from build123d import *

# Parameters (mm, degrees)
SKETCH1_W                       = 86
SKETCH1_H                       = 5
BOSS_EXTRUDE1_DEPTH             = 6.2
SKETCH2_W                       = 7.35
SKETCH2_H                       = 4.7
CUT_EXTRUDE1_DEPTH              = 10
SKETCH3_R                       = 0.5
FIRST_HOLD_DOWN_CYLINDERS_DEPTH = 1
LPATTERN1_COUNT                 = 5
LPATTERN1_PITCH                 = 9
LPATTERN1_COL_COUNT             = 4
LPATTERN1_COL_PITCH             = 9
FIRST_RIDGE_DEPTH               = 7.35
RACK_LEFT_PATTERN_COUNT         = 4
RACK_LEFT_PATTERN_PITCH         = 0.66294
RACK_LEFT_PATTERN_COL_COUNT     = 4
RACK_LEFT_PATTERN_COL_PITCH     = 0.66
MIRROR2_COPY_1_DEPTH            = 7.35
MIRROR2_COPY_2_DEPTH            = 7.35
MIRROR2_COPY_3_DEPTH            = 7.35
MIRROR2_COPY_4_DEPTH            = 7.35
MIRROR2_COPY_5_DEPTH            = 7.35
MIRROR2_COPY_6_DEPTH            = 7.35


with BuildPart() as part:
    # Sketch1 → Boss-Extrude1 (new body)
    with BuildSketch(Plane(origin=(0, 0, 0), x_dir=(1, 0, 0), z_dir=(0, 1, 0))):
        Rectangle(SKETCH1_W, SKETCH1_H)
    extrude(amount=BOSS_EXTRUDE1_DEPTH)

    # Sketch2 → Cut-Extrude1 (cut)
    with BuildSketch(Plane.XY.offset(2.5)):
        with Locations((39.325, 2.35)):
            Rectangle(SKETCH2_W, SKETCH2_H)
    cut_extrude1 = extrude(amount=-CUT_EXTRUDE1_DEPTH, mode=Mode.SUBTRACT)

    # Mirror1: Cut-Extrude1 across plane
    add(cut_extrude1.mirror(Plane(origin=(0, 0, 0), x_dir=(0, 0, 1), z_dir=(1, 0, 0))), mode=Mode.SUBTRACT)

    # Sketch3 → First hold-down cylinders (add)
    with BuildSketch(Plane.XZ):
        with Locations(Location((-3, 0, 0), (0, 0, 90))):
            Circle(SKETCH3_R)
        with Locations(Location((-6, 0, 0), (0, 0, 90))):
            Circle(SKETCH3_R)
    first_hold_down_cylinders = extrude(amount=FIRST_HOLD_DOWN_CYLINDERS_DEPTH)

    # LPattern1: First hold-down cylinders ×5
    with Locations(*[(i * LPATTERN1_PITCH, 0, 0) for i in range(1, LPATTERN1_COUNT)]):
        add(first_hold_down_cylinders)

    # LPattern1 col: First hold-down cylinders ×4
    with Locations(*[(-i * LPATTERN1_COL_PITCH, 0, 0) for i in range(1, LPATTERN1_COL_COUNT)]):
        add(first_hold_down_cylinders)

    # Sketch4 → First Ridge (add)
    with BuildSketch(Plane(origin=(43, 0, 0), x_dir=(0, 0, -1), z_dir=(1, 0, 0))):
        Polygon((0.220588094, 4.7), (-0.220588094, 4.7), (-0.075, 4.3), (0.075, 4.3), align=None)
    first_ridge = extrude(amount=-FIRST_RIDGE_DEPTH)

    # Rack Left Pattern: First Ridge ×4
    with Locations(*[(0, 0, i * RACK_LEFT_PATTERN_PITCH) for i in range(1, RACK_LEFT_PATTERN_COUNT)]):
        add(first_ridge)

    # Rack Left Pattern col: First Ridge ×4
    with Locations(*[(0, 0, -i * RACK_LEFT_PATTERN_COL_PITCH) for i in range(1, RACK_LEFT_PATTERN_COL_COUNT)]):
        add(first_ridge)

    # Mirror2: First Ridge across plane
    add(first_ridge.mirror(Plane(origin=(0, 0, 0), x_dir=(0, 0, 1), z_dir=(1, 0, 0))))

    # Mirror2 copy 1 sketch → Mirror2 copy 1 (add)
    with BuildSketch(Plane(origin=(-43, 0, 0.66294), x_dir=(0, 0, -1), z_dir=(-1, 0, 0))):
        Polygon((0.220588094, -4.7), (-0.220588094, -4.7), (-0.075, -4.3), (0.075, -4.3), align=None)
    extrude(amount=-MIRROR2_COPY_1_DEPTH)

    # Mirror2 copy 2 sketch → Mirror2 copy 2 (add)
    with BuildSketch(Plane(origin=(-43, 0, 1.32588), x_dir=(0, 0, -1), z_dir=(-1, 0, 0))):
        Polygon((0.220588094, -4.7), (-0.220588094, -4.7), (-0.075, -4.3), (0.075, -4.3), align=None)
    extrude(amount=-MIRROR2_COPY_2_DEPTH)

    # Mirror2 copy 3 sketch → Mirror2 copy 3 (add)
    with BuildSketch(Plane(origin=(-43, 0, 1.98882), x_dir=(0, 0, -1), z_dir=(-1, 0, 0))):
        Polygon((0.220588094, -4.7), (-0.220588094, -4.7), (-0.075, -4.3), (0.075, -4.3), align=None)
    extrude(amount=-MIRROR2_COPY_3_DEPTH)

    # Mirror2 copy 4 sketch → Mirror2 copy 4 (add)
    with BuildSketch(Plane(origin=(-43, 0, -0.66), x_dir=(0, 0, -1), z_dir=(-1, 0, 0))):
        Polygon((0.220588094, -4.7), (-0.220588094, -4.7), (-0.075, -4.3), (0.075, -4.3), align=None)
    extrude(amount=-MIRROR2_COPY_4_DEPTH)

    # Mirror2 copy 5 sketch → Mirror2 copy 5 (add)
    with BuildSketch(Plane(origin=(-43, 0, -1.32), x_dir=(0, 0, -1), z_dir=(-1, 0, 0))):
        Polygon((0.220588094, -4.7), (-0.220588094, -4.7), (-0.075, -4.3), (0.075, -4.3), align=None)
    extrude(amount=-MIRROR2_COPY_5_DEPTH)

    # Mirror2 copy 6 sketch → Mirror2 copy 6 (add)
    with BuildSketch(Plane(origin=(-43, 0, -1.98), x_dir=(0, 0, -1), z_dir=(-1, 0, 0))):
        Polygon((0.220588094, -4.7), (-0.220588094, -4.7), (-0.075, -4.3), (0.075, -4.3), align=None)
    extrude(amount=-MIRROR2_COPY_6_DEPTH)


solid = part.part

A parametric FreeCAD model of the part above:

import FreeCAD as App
import Part
import Sketcher
from FreeCAD import Vector
Q = App.Units.Quantity


def add_polygon(sketch, points):
    """Adds a closed chain of lines whose ends are joined by coincident constraints."""
    first, n = sketch.GeometryCount, len(points)
    for a, b in zip(points, points[1:] + points[:1]):
        sketch.addGeometry(Part.LineSegment(App.Vector(*a, 0), App.Vector(*b, 0)), False)
    for i in range(n):
        sketch.addConstraint(Sketcher.Constraint("Coincident", first + i, 2, first + (i + 1) % n, 1))

doc = App.newDocument("Part")
body = doc.addObject("PartDesign::Body", "Body")

# Sketch on XZ plane
sketch1 = doc.addObject("Sketcher::SketchObject", "Sketch")
body.addObject(sketch1)
sketch1.AttachmentSupport = (doc.XZ_Plane, [""])
sketch1.MapMode = "FlatFace"
add_polygon(sketch1, [(-43, -2), (-43, 2), (43, 2), (43, -2)])  # lines 0-3
sketch1.addConstraint([
    Sketcher.Constraint("Vertical", 0),
    Sketcher.Constraint("Horizontal", 1),
    Sketcher.Constraint("Vertical", 2),
    Sketcher.Constraint("Horizontal", 3),
    Sketcher.Constraint("Symmetric", 0, 2, 2, 2, -1, 1),
    Sketcher.Constraint("DistanceX", 1, 1, 1, 2, Q("86 mm")),
    Sketcher.Constraint("DistanceY", 0, 1, 0, 2, Q("5 mm")),
])
pad1 = doc.addObject("PartDesign::Pad", "Pad")
body.addObject(pad1)
pad1.Profile = sketch1
pad1.Length = 6.2
pad1.Reversed = True

# Sketch on XY plane
sketch2 = doc.addObject("Sketcher::SketchObject", "Sketch001")
body.addObject(sketch2)
sketch2.AttachmentSupport = (doc.XY_Plane, [""])
sketch2.MapMode = "FlatFace"
sketch2.AttachmentOffset = App.Placement(Vector(0, 0, 2.5), App.Rotation())
add_polygon(sketch2, [(35.6, 4.7), (35.6, 0), (43, 0), (43, 4.7)])  # lines 0-3
sketch2.addConstraint([
    Sketcher.Constraint("Vertical", 0),
    Sketcher.Constraint("Horizontal", 1),
    Sketcher.Constraint("Vertical", 2),
    Sketcher.Constraint("Horizontal", 3),
    Sketcher.Constraint("PointOnObject", 0, 2, -1),
    Sketcher.Constraint("DistanceY", 0, 2, 0, 1, Q("4.7 mm")),
    Sketcher.Constraint("DistanceX", -1, 1, 1, 2, Q("43 mm")),
    Sketcher.Constraint("DistanceX", 1, 1, 1, 2, Q("7.35 mm")),
])
pocket1 = doc.addObject("PartDesign::Pocket", "Pocket")
body.addObject(pocket1)
pocket1.Profile = sketch2
pocket1.Length = 10
doc.recompute()

mirrored = doc.addObject("PartDesign::Mirrored", "Mirrored")
body.addObject(mirrored)
mirrored.Originals = [pocket1]
mirrored.MirrorPlane = (doc.YZ_Plane, [""])
body.Tip = mirrored

# Sketch on XZ plane
sketch3 = doc.addObject("Sketcher::SketchObject", "Sketch002")
body.addObject(sketch3)
sketch3.AttachmentSupport = (doc.XZ_Plane, [""])
sketch3.MapMode = "FlatFace"
sketch3.addGeometry([
    Part.Circle(Vector(-3, 0, 0), Vector(0, 0, 1), 0.5),
    Part.Circle(Vector(-6, 0, 0), Vector(0, 0, 1), 0.5),
], False)
sketch3.addConstraint([
    Sketcher.Constraint("Equal", 0, 1),
    Sketcher.Constraint("PointOnObject", 0, 3, -1),
    Sketcher.Constraint("PointOnObject", 1, 3, -1),
    Sketcher.Constraint("Diameter", 0, Q("1 mm")),
    Sketcher.Constraint("DistanceX", 0, 3, -1, 1, Q("3 mm")),
    Sketcher.Constraint("DistanceX", 1, 3, -1, 1, Q("6 mm")),
])
pad2 = doc.addObject("PartDesign::Pad", "Pad001")
body.addObject(pad2)
pad2.Profile = sketch3
pad2.Length = 1
doc.recompute()

linearpattern = doc.addObject("PartDesign::LinearPattern", "LinearPattern")
body.addObject(linearpattern)
linearpattern.Originals = [pad2]
linearpattern.Direction = (doc.X_Axis, [""])
linearpattern.Mode = "offset"
linearpattern.Offset = 9
linearpattern.Occurrences = 5
body.Tip = linearpattern
doc.recompute()

linearpattern2 = doc.addObject("PartDesign::LinearPattern", "LinearPattern001")
body.addObject(linearpattern2)
linearpattern2.Originals = [pad2]
linearpattern2.Direction = (doc.X_Axis, [""])
linearpattern2.Mode = "offset"
linearpattern2.Offset = 9
linearpattern2.Occurrences = 4
linearpattern2.Reversed = True
body.Tip = linearpattern2

# Sketch on YZ plane
sketch4 = doc.addObject("Sketcher::SketchObject", "Sketch003")
body.addObject(sketch4)
sketch4.AttachmentSupport = (doc.YZ_Plane, [""])
sketch4.MapMode = "FlatFace"
sketch4.AttachmentOffset = App.Placement(Vector(0, 0, 43), App.Rotation())
add_polygon(sketch4, [(4.7, -0.22), (4.7, 0.22), (4.3, 0.07), (4.3, -0.07)])  # lines 0-3
sketch4.addConstraint([
    Sketcher.Constraint("Vertical", 0),
    Sketcher.Constraint("Vertical", 2),
    Sketcher.Constraint("Equal", 1, 3),
    Sketcher.Constraint("Angle", 1, Q("-160 deg")),
    Sketcher.Constraint("DistanceY", 2, 2, 2, 1, Q("0.15 mm")),
    Sketcher.Constraint("DistanceX", -1, 1, 0, 2, Q("4.7 mm")),
    Sketcher.Constraint("DistanceX", -1, 1, 1, 2, Q("4.3 mm")),
    Sketcher.Constraint("DistanceY", -1, 1, 1, 2, Q("0.075 mm")),
])
pad3 = doc.addObject("PartDesign::Pad", "Pad002")
body.addObject(pad3)
pad3.Profile = sketch4
pad3.Length = 7.35
pad3.Reversed = True
doc.recompute()

linearpattern3 = doc.addObject("PartDesign::LinearPattern", "LinearPattern002")
body.addObject(linearpattern3)
linearpattern3.Originals = [pad3]
linearpattern3.Direction = (doc.Z_Axis, [""])
linearpattern3.Mode = "offset"
linearpattern3.Offset = 0.66294
linearpattern3.Occurrences = 4
body.Tip = linearpattern3
doc.recompute()

linearpattern4 = doc.addObject("PartDesign::LinearPattern", "LinearPattern003")
body.addObject(linearpattern4)
linearpattern4.Originals = [pad3]
linearpattern4.Direction = (doc.Z_Axis, [""])
linearpattern4.Mode = "offset"
linearpattern4.Offset = 0.66
linearpattern4.Occurrences = 4
linearpattern4.Reversed = True
body.Tip = linearpattern4
doc.recompute()

mirrored2 = doc.addObject("PartDesign::Mirrored", "Mirrored001")
body.addObject(mirrored2)
mirrored2.Originals = [pad3]
mirrored2.MirrorPlane = (doc.YZ_Plane, [""])
body.Tip = mirrored2

# Sketch on YZ plane
sketch5 = doc.addObject("Sketcher::SketchObject", "Sketch004")
body.addObject(sketch5)
sketch5.AttachmentSupport = (doc.YZ_Plane, [""])
sketch5.MapMode = "FlatFace"
sketch5.AttachmentOffset = App.Placement(Vector(0, 0, -43), App.Rotation())
add_polygon(sketch5, [(4.7, 0.88), (4.7, 0.44), (4.3, 0.59), (4.3, 0.74)])  # lines 0-3
sketch5.addConstraint([
    Sketcher.Constraint("Vertical", 0),
    Sketcher.Constraint("Vertical", 2),
    Sketcher.Constraint("Equal", 1, 3),
    Sketcher.Constraint("Angle", 1, Q("160 deg")),
    Sketcher.Constraint("DistanceY", 2, 1, 2, 2, Q("0.15 mm")),
    Sketcher.Constraint("DistanceX", -1, 1, 0, 2, Q("4.7 mm")),
    Sketcher.Constraint("DistanceX", -1, 1, 1, 2, Q("4.3 mm")),
    Sketcher.Constraint("DistanceY", -1, 1, 0, 2, Q("0.442352 mm")),
])
pad4 = doc.addObject("PartDesign::Pad", "Pad003")
body.addObject(pad4)
pad4.Profile = sketch5
pad4.Length = 7.35

# Sketch on YZ plane
sketch6 = doc.addObject("Sketcher::SketchObject", "Sketch005")
body.addObject(sketch6)
sketch6.AttachmentSupport = (doc.YZ_Plane, [""])
sketch6.MapMode = "FlatFace"
sketch6.AttachmentOffset = App.Placement(Vector(0, 0, -43), App.Rotation())
add_polygon(sketch6, [(4.7, 1.55), (4.7, 1.11), (4.3, 1.25), (4.3, 1.4)])  # lines 0-3
sketch6.addConstraint([
    Sketcher.Constraint("Vertical", 0),
    Sketcher.Constraint("Vertical", 2),
    Sketcher.Constraint("Equal", 1, 3),
    Sketcher.Constraint("Angle", 1, Q("160 deg")),
    Sketcher.Constraint("DistanceY", 2, 1, 2, 2, Q("0.15 mm")),
    Sketcher.Constraint("DistanceX", -1, 1, 0, 2, Q("4.7 mm")),
    Sketcher.Constraint("DistanceX", -1, 1, 1, 2, Q("4.3 mm")),
    Sketcher.Constraint("DistanceY", -1, 1, 0, 2, Q("1.105292 mm")),
])
pad5 = doc.addObject("PartDesign::Pad", "Pad004")
body.addObject(pad5)
pad5.Profile = sketch6
pad5.Length = 7.35

# Sketch on YZ plane
sketch7 = doc.addObject("Sketcher::SketchObject", "Sketch006")
body.addObject(sketch7)
sketch7.AttachmentSupport = (doc.YZ_Plane, [""])
sketch7.MapMode = "FlatFace"
sketch7.AttachmentOffset = App.Placement(Vector(0, 0, -43), App.Rotation())
add_polygon(sketch7, [(4.7, 2.21), (4.7, 1.77), (4.3, 1.91), (4.3, 2.06)])  # lines 0-3
sketch7.addConstraint([
    Sketcher.Constraint("Vertical", 0),
    Sketcher.Constraint("Vertical", 2),
    Sketcher.Constraint("Equal", 1, 3),
    Sketcher.Constraint("Angle", 1, Q("160 deg")),
    Sketcher.Constraint("DistanceY", 2, 1, 2, 2, Q("0.15 mm")),
    Sketcher.Constraint("DistanceX", -1, 1, 0, 2, Q("4.7 mm")),
    Sketcher.Constraint("DistanceX", -1, 1, 1, 2, Q("4.3 mm")),
    Sketcher.Constraint("DistanceY", -1, 1, 0, 2, Q("1.768232 mm")),
])
pad6 = doc.addObject("PartDesign::Pad", "Pad005")
body.addObject(pad6)
pad6.Profile = sketch7
pad6.Length = 7.35

# Sketch on YZ plane
sketch8 = doc.addObject("Sketcher::SketchObject", "Sketch007")
body.addObject(sketch8)
sketch8.AttachmentSupport = (doc.YZ_Plane, [""])
sketch8.MapMode = "FlatFace"
sketch8.AttachmentOffset = App.Placement(Vector(0, 0, -43), App.Rotation())
add_polygon(sketch8, [(4.7, -0.44), (4.7, -0.88), (4.3, -0.73), (4.3, -0.58)])  # lines 0-3
sketch8.addConstraint([
    Sketcher.Constraint("Vertical", 0),
    Sketcher.Constraint("Vertical", 2),
    Sketcher.Constraint("Equal", 1, 3),
    Sketcher.Constraint("Angle", 1, Q("160 deg")),
    Sketcher.Constraint("DistanceY", 2, 1, 2, 2, Q("0.15 mm")),
    Sketcher.Constraint("DistanceX", -1, 1, 0, 2, Q("4.7 mm")),
    Sketcher.Constraint("DistanceX", -1, 1, 1, 2, Q("4.3 mm")),
    Sketcher.Constraint("DistanceY", 1, 2, -1, 1, Q("0.735 mm")),
])
pad7 = doc.addObject("PartDesign::Pad", "Pad006")
body.addObject(pad7)
pad7.Profile = sketch8
pad7.Length = 7.35

# Sketch on YZ plane
sketch9 = doc.addObject("Sketcher::SketchObject", "Sketch008")
body.addObject(sketch9)
sketch9.AttachmentSupport = (doc.YZ_Plane, [""])
sketch9.MapMode = "FlatFace"
sketch9.AttachmentOffset = App.Placement(Vector(0, 0, -43), App.Rotation())
add_polygon(sketch9, [(4.7, -1.1), (4.7, -1.54), (4.3, -1.4), (4.3, -1.25)])  # lines 0-3
sketch9.addConstraint([
    Sketcher.Constraint("Vertical", 0),
    Sketcher.Constraint("Vertical", 2),
    Sketcher.Constraint("Equal", 1, 3),
    Sketcher.Constraint("Angle", 1, Q("160 deg")),
    Sketcher.Constraint("DistanceY", 2, 1, 2, 2, Q("0.15 mm")),
    Sketcher.Constraint("DistanceX", -1, 1, 0, 2, Q("4.7 mm")),
    Sketcher.Constraint("DistanceX", -1, 1, 1, 2, Q("4.3 mm")),
    Sketcher.Constraint("DistanceY", 1, 2, -1, 1, Q("1.395 mm")),
])
pad8 = doc.addObject("PartDesign::Pad", "Pad007")
body.addObject(pad8)
pad8.Profile = sketch9
pad8.Length = 7.35

# Sketch on YZ plane
sketch10 = doc.addObject("Sketcher::SketchObject", "Sketch009")
body.addObject(sketch10)
sketch10.AttachmentSupport = (doc.YZ_Plane, [""])
sketch10.MapMode = "FlatFace"
sketch10.AttachmentOffset = App.Placement(Vector(0, 0, -43), App.Rotation())
add_polygon(sketch10, [(4.7, -1.76), (4.7, -2.2), (4.3, -2.06), (4.3, -1.91)])  # lines 0-3
sketch10.addConstraint([
    Sketcher.Constraint("Vertical", 0),
    Sketcher.Constraint("Vertical", 2),
    Sketcher.Constraint("Equal", 1, 3),
    Sketcher.Constraint("Angle", 1, Q("160 deg")),
    Sketcher.Constraint("DistanceY", 2, 1, 2, 2, Q("0.15 mm")),
    Sketcher.Constraint("DistanceX", -1, 1, 0, 2, Q("4.7 mm")),
    Sketcher.Constraint("DistanceX", -1, 1, 1, 2, Q("4.3 mm")),
    Sketcher.Constraint("DistanceY", 1, 2, -1, 1, Q("2.055 mm")),
])
pad9 = doc.addObject("PartDesign::Pad", "Pad008")
body.addObject(pad9)
pad9.Profile = sketch10
pad9.Length = 7.35

doc.recompute()
